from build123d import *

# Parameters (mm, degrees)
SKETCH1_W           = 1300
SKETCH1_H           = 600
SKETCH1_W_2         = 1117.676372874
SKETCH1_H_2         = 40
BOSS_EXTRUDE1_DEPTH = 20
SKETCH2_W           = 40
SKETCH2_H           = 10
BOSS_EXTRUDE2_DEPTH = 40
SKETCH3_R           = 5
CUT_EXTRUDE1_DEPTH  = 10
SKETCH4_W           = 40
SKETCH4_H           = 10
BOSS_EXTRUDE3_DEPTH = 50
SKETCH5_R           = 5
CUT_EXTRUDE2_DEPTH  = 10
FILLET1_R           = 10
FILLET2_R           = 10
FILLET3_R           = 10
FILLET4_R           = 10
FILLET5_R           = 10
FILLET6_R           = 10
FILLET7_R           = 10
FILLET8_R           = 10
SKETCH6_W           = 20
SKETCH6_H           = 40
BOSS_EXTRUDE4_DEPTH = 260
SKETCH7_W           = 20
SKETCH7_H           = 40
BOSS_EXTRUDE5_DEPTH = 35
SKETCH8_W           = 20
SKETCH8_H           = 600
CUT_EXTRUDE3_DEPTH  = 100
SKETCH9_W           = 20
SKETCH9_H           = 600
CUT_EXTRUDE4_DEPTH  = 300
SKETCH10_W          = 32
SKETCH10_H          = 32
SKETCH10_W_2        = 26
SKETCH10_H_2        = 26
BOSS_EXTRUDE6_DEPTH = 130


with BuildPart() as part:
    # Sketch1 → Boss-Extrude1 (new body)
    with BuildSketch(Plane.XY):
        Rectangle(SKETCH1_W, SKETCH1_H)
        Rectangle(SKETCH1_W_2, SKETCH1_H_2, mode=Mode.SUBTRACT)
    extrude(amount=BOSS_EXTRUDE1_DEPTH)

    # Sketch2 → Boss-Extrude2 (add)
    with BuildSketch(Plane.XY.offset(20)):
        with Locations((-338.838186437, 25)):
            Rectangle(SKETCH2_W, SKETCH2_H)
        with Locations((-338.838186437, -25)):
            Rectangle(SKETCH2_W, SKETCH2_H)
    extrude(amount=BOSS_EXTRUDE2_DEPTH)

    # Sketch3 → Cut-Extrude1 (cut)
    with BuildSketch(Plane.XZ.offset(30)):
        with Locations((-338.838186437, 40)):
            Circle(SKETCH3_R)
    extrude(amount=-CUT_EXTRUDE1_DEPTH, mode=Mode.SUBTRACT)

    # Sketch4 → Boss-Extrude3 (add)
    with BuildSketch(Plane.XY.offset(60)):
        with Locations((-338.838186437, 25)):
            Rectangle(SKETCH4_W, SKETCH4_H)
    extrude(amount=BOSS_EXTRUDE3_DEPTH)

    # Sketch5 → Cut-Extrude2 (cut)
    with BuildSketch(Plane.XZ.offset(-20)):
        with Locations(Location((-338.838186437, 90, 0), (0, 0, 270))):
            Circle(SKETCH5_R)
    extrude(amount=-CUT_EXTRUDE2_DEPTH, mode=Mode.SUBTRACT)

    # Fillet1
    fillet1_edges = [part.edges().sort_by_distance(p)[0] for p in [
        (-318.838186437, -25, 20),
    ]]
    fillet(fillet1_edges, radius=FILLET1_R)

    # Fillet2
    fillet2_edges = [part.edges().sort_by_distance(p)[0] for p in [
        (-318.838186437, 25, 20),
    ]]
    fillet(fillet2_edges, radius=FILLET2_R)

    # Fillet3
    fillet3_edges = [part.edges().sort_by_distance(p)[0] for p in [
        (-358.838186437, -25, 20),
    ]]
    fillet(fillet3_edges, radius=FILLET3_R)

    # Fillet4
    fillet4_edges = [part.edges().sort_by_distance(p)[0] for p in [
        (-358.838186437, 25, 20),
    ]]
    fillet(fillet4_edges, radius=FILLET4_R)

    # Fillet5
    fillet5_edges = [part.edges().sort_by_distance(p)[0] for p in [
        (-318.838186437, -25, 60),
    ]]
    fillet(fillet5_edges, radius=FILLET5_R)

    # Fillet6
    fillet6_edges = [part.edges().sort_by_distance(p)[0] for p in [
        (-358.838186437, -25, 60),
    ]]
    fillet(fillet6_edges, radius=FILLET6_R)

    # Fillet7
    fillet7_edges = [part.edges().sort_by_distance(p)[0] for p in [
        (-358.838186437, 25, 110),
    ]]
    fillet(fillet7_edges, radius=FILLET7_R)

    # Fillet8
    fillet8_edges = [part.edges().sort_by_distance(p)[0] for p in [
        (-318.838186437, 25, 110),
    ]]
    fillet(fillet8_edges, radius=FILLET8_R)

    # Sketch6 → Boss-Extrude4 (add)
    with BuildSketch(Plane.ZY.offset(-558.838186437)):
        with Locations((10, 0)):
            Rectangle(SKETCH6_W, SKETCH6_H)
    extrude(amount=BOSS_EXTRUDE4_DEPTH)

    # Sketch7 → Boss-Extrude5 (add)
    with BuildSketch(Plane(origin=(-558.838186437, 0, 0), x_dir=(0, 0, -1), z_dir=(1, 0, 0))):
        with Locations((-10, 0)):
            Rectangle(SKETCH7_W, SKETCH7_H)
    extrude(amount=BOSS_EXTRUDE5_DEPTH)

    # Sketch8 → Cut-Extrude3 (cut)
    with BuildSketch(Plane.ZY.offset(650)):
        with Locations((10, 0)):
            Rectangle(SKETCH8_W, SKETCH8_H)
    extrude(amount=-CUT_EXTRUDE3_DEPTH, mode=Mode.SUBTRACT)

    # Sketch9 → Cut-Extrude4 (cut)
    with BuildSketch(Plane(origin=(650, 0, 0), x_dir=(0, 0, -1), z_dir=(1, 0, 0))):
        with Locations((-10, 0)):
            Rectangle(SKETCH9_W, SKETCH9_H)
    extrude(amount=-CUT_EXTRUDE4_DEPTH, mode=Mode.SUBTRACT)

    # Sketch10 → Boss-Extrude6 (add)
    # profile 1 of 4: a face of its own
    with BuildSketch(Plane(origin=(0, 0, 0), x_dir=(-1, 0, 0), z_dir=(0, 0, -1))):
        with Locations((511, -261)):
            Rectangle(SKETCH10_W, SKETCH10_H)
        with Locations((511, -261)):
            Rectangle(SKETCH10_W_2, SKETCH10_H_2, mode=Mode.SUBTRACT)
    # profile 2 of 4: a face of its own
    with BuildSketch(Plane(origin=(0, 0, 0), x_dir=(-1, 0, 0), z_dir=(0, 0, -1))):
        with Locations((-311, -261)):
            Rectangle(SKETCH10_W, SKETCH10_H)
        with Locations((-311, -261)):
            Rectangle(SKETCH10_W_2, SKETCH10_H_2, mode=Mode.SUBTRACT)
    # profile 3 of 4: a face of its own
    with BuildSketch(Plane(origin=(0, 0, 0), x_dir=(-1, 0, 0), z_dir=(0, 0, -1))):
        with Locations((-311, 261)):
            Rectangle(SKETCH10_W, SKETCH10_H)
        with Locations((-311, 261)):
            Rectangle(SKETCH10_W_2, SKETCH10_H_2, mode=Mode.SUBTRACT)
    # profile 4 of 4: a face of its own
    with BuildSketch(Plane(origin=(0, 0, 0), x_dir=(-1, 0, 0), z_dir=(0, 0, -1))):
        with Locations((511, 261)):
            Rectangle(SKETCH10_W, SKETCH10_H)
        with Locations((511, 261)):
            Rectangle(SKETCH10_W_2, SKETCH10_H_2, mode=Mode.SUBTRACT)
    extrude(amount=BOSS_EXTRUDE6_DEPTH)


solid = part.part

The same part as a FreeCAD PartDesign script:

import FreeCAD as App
import Part
import Sketcher


def edges_at(feature, points):
    """Names of the edges that pass closest to the given points."""
    edges = feature.Shape.Edges
    near = lambda p: min(range(len(edges)), key=lambda i: edges[i].distToShape(Part.Vertex(*p))[0])
    return sorted({f"Edge{near(p) + 1}" for p in points})

doc = App.newDocument("Part")
body = doc.addObject("PartDesign::Body", "Body")

# Sketch on XY plane
sketch1 = doc.addObject("Sketcher::SketchObject", "Sketch")
body.addObject(sketch1)
sketch1.AttachmentSupport = (doc.XY_Plane, [""])
sketch1.MapMode = "FlatFace"
sketch1.addGeometry([
    Part.LineSegment(App.Vector(-650, 300, 0), App.Vector(-650, -300, 0)),  # 0
    Part.LineSegment(App.Vector(-650, -300, 0), App.Vector(650, -300, 0)),  # 1
    Part.LineSegment(App.Vector(650, -300, 0), App.Vector(650, 300, 0)),  # 2
    Part.LineSegment(App.Vector(650, 300, 0), App.Vector(-650, 300, 0)),  # 3
    Part.LineSegment(App.Vector(559, -20, 0), App.Vector(-559, -20, 0)),  # 4
    Part.LineSegment(App.Vector(-559, -20, 0), App.Vector(-559, 20, 0)),  # 5
    Part.LineSegment(App.Vector(-559, 20, 0), App.Vector(559, 20, 0)),  # 6
    Part.LineSegment(App.Vector(559, 20, 0), App.Vector(559, -20, 0)),  # 7
], False)
sketch1.addConstraint([
    Sketcher.Constraint("Coincident", 0, 2, 1, 1),
    Sketcher.Constraint("Coincident", 1, 2, 2, 1),
    Sketcher.Constraint("Coincident", 2, 2, 3, 1),
    Sketcher.Constraint("Coincident", 3, 2, 0, 1),
    Sketcher.Constraint("Coincident", 4, 2, 5, 1),
    Sketcher.Constraint("Coincident", 5, 2, 6, 1),
    Sketcher.Constraint("Coincident", 6, 2, 7, 1),
    Sketcher.Constraint("Coincident", 7, 2, 4, 1),
    Sketcher.Constraint("Vertical", 0),
    Sketcher.Constraint("Horizontal", 1),
    Sketcher.Constraint("Vertical", 2),
    Sketcher.Constraint("Horizontal", 3),
    Sketcher.Constraint("Horizontal", 4),
    Sketcher.Constraint("Vertical", 5),
    Sketcher.Constraint("Horizontal", 6),
    Sketcher.Constraint("Vertical", 7),
    Sketcher.Constraint("Symmetric", 0, 2, 2, 2, -1, 1),
    Sketcher.Constraint("Symmetric", 4, 2, 6, 2, -1, 1),
    Sketcher.Constraint("DistanceX", 1, 1, 1, 2, 1300.0),
    Sketcher.Constraint("DistanceY", 0, 2, 0, 1, 600.0),
    Sketcher.Constraint("DistanceY", 5, 1, 5, 2, 40.0),
    Sketcher.Constraint("DistanceX", 4, 2, 4, 1, 1117.676373),
])
pad1 = doc.addObject("PartDesign::Pad", "Pad")
body.addObject(pad1)
pad1.Profile = sketch1
pad1.Length = 20

# Sketch on XY plane
sketch2 = doc.addObject("Sketcher::SketchObject", "Sketch001")
body.addObject(sketch2)
sketch2.AttachmentSupport = (doc.XY_Plane, [""])
sketch2.MapMode = "FlatFace"
sketch2.AttachmentOffset = App.Placement(App.Vector(0, 0, 20), App.Rotation())
sketch2.addGeometry([
    Part.LineSegment(App.Vector(-359, 30, 0), App.Vector(-359, 20, 0)),  # 0
    Part.LineSegment(App.Vector(-359, 20, 0), App.Vector(-319, 20, 0)),  # 1
    Part.LineSegment(App.Vector(-319, 20, 0), App.Vector(-319, 30, 0)),  # 2
    Part.LineSegment(App.Vector(-319, 30, 0), App.Vector(-359, 30, 0)),  # 3
    Part.LineSegment(App.Vector(-359, -20, 0), App.Vector(-359, -30, 0)),  # 4
    Part.LineSegment(App.Vector(-359, -30, 0), App.Vector(-319, -30, 0)),  # 5
    Part.LineSegment(App.Vector(-319, -30, 0), App.Vector(-319, -20, 0)),  # 6
    Part.LineSegment(App.Vector(-319, -20, 0), App.Vector(-359, -20, 0)),  # 7
], False)
sketch2.addConstraint([
    Sketcher.Constraint("Coincident", 0, 2, 1, 1),
    Sketcher.Constraint("Coincident", 1, 2, 2, 1),
    Sketcher.Constraint("Coincident", 2, 2, 3, 1),
    Sketcher.Constraint("Coincident", 3, 2, 0, 1),
    Sketcher.Constraint("Coincident", 4, 2, 5, 1),
    Sketcher.Constraint("Coincident", 5, 2, 6, 1),
    Sketcher.Constraint("Coincident", 6, 2, 7, 1),
    Sketcher.Constraint("Coincident", 7, 2, 4, 1),
    Sketcher.Constraint("Vertical", 0),
    Sketcher.Constraint("Horizontal", 1),
    Sketcher.Constraint("Vertical", 2),
    Sketcher.Constraint("Horizontal", 3),
    Sketcher.Constraint("Vertical", 4),
    Sketcher.Constraint("Horizontal", 5),
    Sketcher.Constraint("Vertical", 6),
    Sketcher.Constraint("Horizontal", 7),
    Sketcher.Constraint("Symmetric", 3, 2, 4, 2, -1),
    Sketcher.Constraint("Symmetric", 1, 2, 6, 2, -1),
    Sketcher.Constraint("DistanceX", 1, 1, 1, 2, 40.0),
    Sketcher.Constraint("DistanceY", 0, 2, 0, 1, 10.0),
    Sketcher.Constraint("DistanceY", -1, 1, 0, 2, 20.0),
    Sketcher.Constraint("DistanceX", 0, 2, -1, 1, 358.838186),
])
pad2 = doc.addObject("PartDesign::Pad", "Pad001")
body.addObject(pad2)
pad2.Profile = sketch2
pad2.Length = 40

# Sketch on XZ plane
sketch3 = doc.addObject("Sketcher::SketchObject", "Sketch002")
body.addObject(sketch3)
sketch3.AttachmentSupport = (doc.XZ_Plane, [""])
sketch3.MapMode = "FlatFace"
sketch3.AttachmentOffset = App.Placement(App.Vector(0, 0, 30), App.Rotation())
sketch3.addGeometry(Part.Circle(App.Vector(-339, 40, 0), App.Vector(0, 0, 1), 5), False)
sketch3.addConstraint([
    Sketcher.Constraint("Diameter", 0, 10.0),
    Sketcher.Constraint("DistanceY", -1, 1, 0, 3, 40.0),
    Sketcher.Constraint("DistanceX", 0, 3, -1, 1, 338.838186),
])
pocket1 = doc.addObject("PartDesign::Pocket", "Pocket")
body.addObject(pocket1)
pocket1.Profile = sketch3
pocket1.Length = 10

# Sketch on XY plane
sketch4 = doc.addObject("Sketcher::SketchObject", "Sketch003")
body.addObject(sketch4)
sketch4.AttachmentSupport = (doc.XY_Plane, [""])
sketch4.MapMode = "FlatFace"
sketch4.AttachmentOffset = App.Placement(App.Vector(0, 0, 60), App.Rotation())
sketch4.addGeometry([
    Part.LineSegment(App.Vector(-359, 30, 0), App.Vector(-359, 20, 0)),
    Part.LineSegment(App.Vector(-359, 20, 0), App.Vector(-319, 20, 0)),
    Part.LineSegment(App.Vector(-319, 20, 0), App.Vector(-319, 30, 0)),
    Part.LineSegment(App.Vector(-319, 30, 0), App.Vector(-359, 30, 0)),
], False)
sketch4.addConstraint([
    Sketcher.Constraint("Coincident", 0, 2, 1, 1),
    Sketcher.Constraint("Coincident", 1, 2, 2, 1),
    Sketcher.Constraint("Coincident", 2, 2, 3, 1),
    Sketcher.Constraint("Coincident", 3, 2, 0, 1),
    Sketcher.Constraint("Vertical", 0),
    Sketcher.Constraint("Horizontal", 1),
    Sketcher.Constraint("Vertical", 2),
    Sketcher.Constraint("Horizontal", 3),
    Sketcher.Constraint("DistanceX", 1, 1, 1, 2, 40.0),
    Sketcher.Constraint("DistanceY", 0, 2, 0, 1, 10.0),
    Sketcher.Constraint("DistanceY", -1, 1, 0, 2, 20.0),
    Sketcher.Constraint("DistanceX", 0, 2, -1, 1, 358.838186),
])
pad3 = doc.addObject("PartDesign::Pad", "Pad002")
body.addObject(pad3)
pad3.Profile = sketch4
pad3.Length = 50

# Sketch on XZ plane
sketch5 = doc.addObject("Sketcher::SketchObject", "Sketch004")
body.addObject(sketch5)
sketch5.AttachmentSupport = (doc.XZ_Plane, [""])
sketch5.MapMode = "FlatFace"
sketch5.AttachmentOffset = App.Placement(App.Vector(0, 0, -20), App.Rotation())
sketch5.addGeometry(Part.Circle(App.Vector(-339, 90, 0), App.Vector(0, 0, 1), 5), False)
sketch5.addConstraint([
    Sketcher.Constraint("Diameter", 0, 10.0),
    Sketcher.Constraint("DistanceY", -1, 1, 0, 3, 90.0),
    Sketcher.Constraint("DistanceX", 0, 3, -1, 1, 338.838186),
])
pocket2 = doc.addObject("PartDesign::Pocket", "Pocket001")
body.addObject(pocket2)
pocket2.Profile = sketch5
pocket2.Length = 10
doc.recompute()

fillet = doc.addObject("PartDesign::Fillet", "Fillet")
body.addObject(fillet)
fillet.Base = (pocket2, edges_at(pocket2, [(-318.838, -25, 20)]))
fillet.Radius = 10
doc.recompute()

fillet2 = doc.addObject("PartDesign::Fillet", "Fillet001")
body.addObject(fillet2)
fillet2.Base = (fillet, edges_at(fillet, [(-318.838, 25, 20)]))
fillet2.Radius = 10
doc.recompute()

fillet3 = doc.addObject("PartDesign::Fillet", "Fillet002")
body.addObject(fillet3)
fillet3.Base = (fillet2, edges_at(fillet2, [(-358.838, -25, 20)]))
fillet3.Radius = 10
doc.recompute()

fillet4 = doc.addObject("PartDesign::Fillet", "Fillet003")
body.addObject(fillet4)
fillet4.Base = (fillet3, edges_at(fillet3, [(-358.838, 25, 20)]))
fillet4.Radius = 10
doc.recompute()

fillet5 = doc.addObject("PartDesign::Fillet", "Fillet004")
body.addObject(fillet5)
fillet5.Base = (fillet4, edges_at(fillet4, [(-318.838, -25, 60)]))
fillet5.Radius = 10
doc.recompute()

fillet6 = doc.addObject("PartDesign::Fillet", "Fillet005")
body.addObject(fillet6)
fillet6.Base = (fillet5, edges_at(fillet5, [(-358.838, -25, 60)]))
fillet6.Radius = 10
doc.recompute()

fillet7 = doc.addObject("PartDesign::Fillet", "Fillet006")
body.addObject(fillet7)
fillet7.Base = (fillet6, edges_at(fillet6, [(-358.838, 25, 110)]))
fillet7.Radius = 10
doc.recompute()

fillet8 = doc.addObject("PartDesign::Fillet", "Fillet007")
body.addObject(fillet8)
fillet8.Base = (fillet7, edges_at(fillet7, [(-318.838, 25, 110)]))
fillet8.Radius = 10

# Sketch on YZ plane
sketch6 = doc.addObject("Sketcher::SketchObject", "Sketch005")
body.addObject(sketch6)
sketch6.AttachmentSupport = (doc.YZ_Plane, [""])
sketch6.MapMode = "FlatFace"
sketch6.AttachmentOffset = App.Placement(App.Vector(0, 0, 558.838186), App.Rotation())
sketch6.addGeometry([
    Part.LineSegment(App.Vector(20, 0, 0), App.Vector(-20, 0, 0)),
    Part.LineSegment(App.Vector(-20, 0, 0), App.Vector(-20, 20, 0)),
    Part.LineSegment(App.Vector(-20, 20, 0), App.Vector(20, 20, 0)),
    Part.LineSegment(App.Vector(20, 20, 0), App.Vector(20, 0, 0)),
], False)
sketch6.addConstraint([
    Sketcher.Constraint("Coincident", 0, 2, 1, 1),
    Sketcher.Constraint("Coincident", 1, 2, 2, 1),
    Sketcher.Constraint("Coincident", 2, 2, 3, 1),
    Sketcher.Constraint("Coincident", 3, 2, 0, 1),
    Sketcher.Constraint("Horizontal", 0),
    Sketcher.Constraint("Vertical", 1),
    Sketcher.Constraint("Horizontal", 2),
    Sketcher.Constraint("Vertical", 3),
    Sketcher.Constraint("Symmetric", 0, 2, 3, 2, -1, 1),
    Sketcher.Constraint("DistanceX", 0, 2, 0, 1, 40.0),
    Sketcher.Constraint("DistanceY", 1, 1, 1, 2, 20.0),
])
pad4 = doc.addObject("PartDesign::Pad", "Pad003")
body.addObject(pad4)
pad4.Profile = sketch6
pad4.Length = 260
pad4.Reversed = True

# Sketch on YZ plane
sketch7 = doc.addObject("Sketcher::SketchObject", "Sketch006")
body.addObject(sketch7)
sketch7.AttachmentSupport = (doc.YZ_Plane, [""])
sketch7.MapMode = "FlatFace"
sketch7.AttachmentOffset = App.Placement(App.Vector(0, 0, -558.838186), App.Rotation())
sketch7.addGeometry([
    Part.LineSegment(App.Vector(20, 20, 0), App.Vector(-20, 20, 0)),
    Part.LineSegment(App.Vector(-20, 20, 0), App.Vector(-20, 0, 0)),
    Part.LineSegment(App.Vector(-20, 0, 0), App.Vector(20, 0, 0)),
    Part.LineSegment(App.Vector(20, 0, 0), App.Vector(20, 20, 0)),
], False)
sketch7.addConstraint([
    Sketcher.Constraint("Coincident", 0, 2, 1, 1),
    Sketcher.Constraint("Coincident", 1, 2, 2, 1),
    Sketcher.Constraint("Coincident", 2, 2, 3, 1),
    Sketcher.Constraint("Coincident", 3, 2, 0, 1),
    Sketcher.Constraint("Horizontal", 0),
    Sketcher.Constraint("Vertical", 1),
    Sketcher.Constraint("Horizontal", 2),
    Sketcher.Constraint("Vertical", 3),
    Sketcher.Constraint("Symmetric", 1, 2, 2, 2, -1, 1),
    Sketcher.Constraint("DistanceX", 0, 2, 0, 1, 40.0),
    Sketcher.Constraint("DistanceY", 1, 2, 1, 1, 20.0),
])
pad5 = doc.addObject("PartDesign::Pad", "Pad004")
body.addObject(pad5)
pad5.Profile = sketch7
pad5.Length = 35

# Sketch on YZ plane
sketch8 = doc.addObject("Sketcher::SketchObject", "Sketch007")
body.addObject(sketch8)
sketch8.AttachmentSupport = (doc.YZ_Plane, [""])
sketch8.MapMode = "FlatFace"
sketch8.AttachmentOffset = App.Placement(App.Vector(0, 0, -650), App.Rotation())
sketch8.addGeometry([
    Part.LineSegment(App.Vector(300, 0, 0), App.Vector(-300, 0, 0)),
    Part.LineSegment(App.Vector(-300, 0, 0), App.Vector(-300, 20, 0)),
    Part.LineSegment(App.Vector(-300, 20, 0), App.Vector(300, 20, 0)),
    Part.LineSegment(App.Vector(300, 20, 0), App.Vector(300, 0, 0)),
], False)
sketch8.addConstraint([
    Sketcher.Constraint("Coincident", 0, 2, 1, 1),
    Sketcher.Constraint("Coincident", 1, 2, 2, 1),
    Sketcher.Constraint("Coincident", 2, 2, 3, 1),
    Sketcher.Constraint("Coincident", 3, 2, 0, 1),
    Sketcher.Constraint("Horizontal", 0),
    Sketcher.Constraint("Vertical", 1),
    Sketcher.Constraint("Horizontal", 2),
    Sketcher.Constraint("Vertical", 3),
    Sketcher.Constraint("Symmetric", 0, 2, 3, 2, -1, 1),
    Sketcher.Constraint("DistanceX", 0, 2, 0, 1, 600.0),
    Sketcher.Constraint("DistanceY", 1, 1, 1, 2, 20.0),
])
pocket3 = doc.addObject("PartDesign::Pocket", "Pocket002")
body.addObject(pocket3)
pocket3.Profile = sketch8
pocket3.Length = 100
pocket3.Reversed = True

# Sketch on YZ plane
sketch9 = doc.addObject("Sketcher::SketchObject", "Sketch008")
body.addObject(sketch9)
sketch9.AttachmentSupport = (doc.YZ_Plane, [""])
sketch9.MapMode = "FlatFace"
sketch9.AttachmentOffset = App.Placement(App.Vector(0, 0, 650), App.Rotation())
sketch9.addGeometry([
    Part.LineSegment(App.Vector(300, 20, 0), App.Vector(-300, 20, 0)),
    Part.LineSegment(App.Vector(-300, 20, 0), App.Vector(-300, 0, 0)),
    Part.LineSegment(App.Vector(-300, 0, 0), App.Vector(300, 0, 0)),
    Part.LineSegment(App.Vector(300, 0, 0), App.Vector(300, 20, 0)),
], False)
sketch9.addConstraint([
    Sketcher.Constraint("Coincident", 0, 2, 1, 1),
    Sketcher.Constraint("Coincident", 1, 2, 2, 1),
    Sketcher.Constraint("Coincident", 2, 2, 3, 1),
    Sketcher.Constraint("Coincident", 3, 2, 0, 1),
    Sketcher.Constraint("Horizontal", 0),
    Sketcher.Constraint("Vertical", 1),
    Sketcher.Constraint("Horizontal", 2),
    Sketcher.Constraint("Vertical", 3),
    Sketcher.Constraint("Symmetric", 1, 2, 2, 2, -1, 1),
    Sketcher.Constraint("DistanceX", 0, 2, 0, 1, 600.0),
    Sketcher.Constraint("DistanceY", 1, 2, 1, 1, 20.0),
])
pocket4 = doc.addObject("PartDesign::Pocket", "Pocket003")
body.addObject(pocket4)
pocket4.Profile = sketch9
pocket4.Length = 300

# Sketch on XY plane
sketch10 = doc.addObject("Sketcher::SketchObject", "Sketch009")
body.addObject(sketch10)
sketch10.AttachmentSupport = (doc.XY_Plane, [""])
sketch10.MapMode = "FlatFace"
sketch10.addGeometry([
    Part.LineSegment(App.Vector(-495, -245, 0), App.Vector(-495, -277, 0)),  # 0
    Part.LineSegment(App.Vector(-495, -277, 0), App.Vector(-527, -277, 0)),  # 1
    Part.LineSegment(App.Vector(-527, -277, 0), App.Vector(-527, -245, 0)),  # 2
    Part.LineSegment(App.Vector(-527, -245, 0), App.Vector(-495, -245, 0)),  # 3
    Part.LineSegment(App.Vector(-524, -274, 0), App.Vector(-498, -274, 0)),  # 4
    Part.LineSegment(App.Vector(-498, -274, 0), App.Vector(-498, -248, 0)),  # 5
    Part.LineSegment(App.Vector(-498, -248, 0), App.Vector(-524, -248, 0)),  # 6
    Part.LineSegment(App.Vector(-524, -248, 0), App.Vector(-524, -274, 0)),  # 7
    Part.LineSegment(App.Vector(327, -245, 0), App.Vector(327, -277, 0)),  # 8
    Part.LineSegment(App.Vector(327, -277, 0), App.Vector(295, -277, 0)),  # 9
    Part.LineSegment(App.Vector(295, -277, 0), App.Vector(295, -245, 0)),  # 10
    Part.LineSegment(App.Vector(295, -245, 0), App.Vector(327, -245, 0)),  # 11
    Part.LineSegment(App.Vector(298, -274, 0), App.Vector(324, -274, 0)),  # 12
    Part.LineSegment(App.Vector(324, -274, 0), App.Vector(324, -248, 0)),  # 13
    Part.LineSegment(App.Vector(324, -248, 0), App.Vector(298, -248, 0)),  # 14
    Part.LineSegment(App.Vector(298, -248, 0), App.Vector(298, -274, 0)),  # 15
    Part.LineSegment(App.Vector(327, 277, 0), App.Vector(327, 245, 0)),  # 16
    Part.LineSegment(App.Vector(327, 245, 0), App.Vector(295, 245, 0)),  # 17
    Part.LineSegment(App.Vector(295, 245, 0), App.Vector(295, 277, 0)),  # 18
    Part.LineSegment(App.Vector(295, 277, 0), App.Vector(327, 277, 0)),  # 19
    Part.LineSegment(App.Vector(298, 248, 0), App.Vector(324, 248, 0)),  # 20
    Part.LineSegment(App.Vector(324, 248, 0), App.Vector(324, 274, 0)),  # 21
    Part.LineSegment(App.Vector(324, 274, 0), App.Vector(298, 274, 0)),  # 22
    Part.LineSegment(App.Vector(298, 274, 0), App.Vector(298, 248, 0)),  # 23
    Part.LineSegment(App.Vector(-495, 277, 0), App.Vector(-495, 245, 0)),  # 24
    Part.LineSegment(App.Vector(-495, 245, 0), App.Vector(-527, 245, 0)),  # 25
    Part.LineSegment(App.Vector(-527, 245, 0), App.Vector(-527, 277, 0)),  # 26
    Part.LineSegment(App.Vector(-527, 277, 0), App.Vector(-495, 277, 0)),  # 27
    Part.LineSegment(App.Vector(-524, 248, 0), App.Vector(-498, 248, 0)),  # 28
    Part.LineSegment(App.Vector(-498, 248, 0), App.Vector(-498, 274, 0)),  # 29
    Part.LineSegment(App.Vector(-498, 274, 0), App.Vector(-524, 274, 0)),  # 30
    Part.LineSegment(App.Vector(-524, 274, 0), App.Vector(-524, 248, 0)),  # 31
], False)
sketch10.addConstraint([
    Sketcher.Constraint("Coincident", 0, 2, 1, 1),
    Sketcher.Constraint("Coincident", 1, 2, 2, 1),
    Sketcher.Constraint("Coincident", 2, 2, 3, 1),
    Sketcher.Constraint("Coincident", 3, 2, 0, 1),
    Sketcher.Constraint("Coincident", 4, 2, 5, 1),
    Sketcher.Constraint("Coincident", 5, 2, 6, 1),
    Sketcher.Constraint("Coincident", 6, 2, 7, 1),
    Sketcher.Constraint("Coincident", 7, 2, 4, 1),
    Sketcher.Constraint("Coincident", 8, 2, 9, 1),
    Sketcher.Constraint("Coincident", 9, 2, 10, 1),
    Sketcher.Constraint("Coincident", 10, 2, 11, 1),
    Sketcher.Constraint("Coincident", 11, 2, 8, 1),
    Sketcher.Constraint("Coincident", 12, 2, 13, 1),
    Sketcher.Constraint("Coincident", 13, 2, 14, 1),
    Sketcher.Constraint("Coincident", 14, 2, 15, 1),
    Sketcher.Constraint("Coincident", 15, 2, 12, 1),
    Sketcher.Constraint("Coincident", 16, 2, 17, 1),
    Sketcher.Constraint("Coincident", 17, 2, 18, 1),
    Sketcher.Constraint("Coincident", 18, 2, 19, 1),
    Sketcher.Constraint("Coincident", 19, 2, 16, 1),
    Sketcher.Constraint("Coincident", 20, 2, 21, 1),
    Sketcher.Constraint("Coincident", 21, 2, 22, 1),
    Sketcher.Constraint("Coincident", 22, 2, 23, 1),
    Sketcher.Constraint("Coincident", 23, 2, 20, 1),
    Sketcher.Constraint("Coincident", 24, 2, 25, 1),
    Sketcher.Constraint("Coincident", 25, 2, 26, 1),
    Sketcher.Constraint("Coincident", 26, 2, 27, 1),
    Sketcher.Constraint("Coincident", 27, 2, 24, 1),
    Sketcher.Constraint("Coincident", 28, 2, 29, 1),
    Sketcher.Constraint("Coincident", 29, 2, 30, 1),
    Sketcher.Constraint("Coincident", 30, 2, 31, 1),
    Sketcher.Constraint("Coincident", 31, 2, 28, 1),
    Sketcher.Constraint("Vertical", 0),
    Sketcher.Constraint("Horizontal", 1),
    Sketcher.Constraint("Vertical", 2),
    Sketcher.Constraint("Horizontal", 3),
    Sketcher.Constraint("Horizontal", 4),
    Sketcher.Constraint("Vertical", 5),
    Sketcher.Constraint("Horizontal", 6),
    Sketcher.Constraint("Vertical", 7),
    Sketcher.Constraint("Vertical", 8),
    Sketcher.Constraint("Horizontal", 9),
    Sketcher.Constraint("Vertical", 10),
    Sketcher.Constraint("Horizontal", 11),
    Sketcher.Constraint("Horizontal", 12),
    Sketcher.Constraint("Vertical", 13),
    Sketcher.Constraint("Horizontal", 14),
    Sketcher.Constraint("Vertical", 15),
    Sketcher.Constraint("Vertical", 16),
    Sketcher.Constraint("Horizontal", 17),
    Sketcher.Constraint("Vertical", 18),
    Sketcher.Constraint("Horizontal", 19),
    Sketcher.Constraint("Horizontal", 20),
    Sketcher.Constraint("Vertical", 21),
    Sketcher.Constraint("Horizontal", 22),
    Sketcher.Constraint("Vertical", 23),
    Sketcher.Constraint("Vertical", 24),
    Sketcher.Constraint("Horizontal", 25),
    Sketcher.Constraint("Vertical", 26),
    Sketcher.Constraint("Horizontal", 27),
    Sketcher.Constraint("Horizontal", 28),
    Sketcher.Constraint("Vertical", 29),
    Sketcher.Constraint("Horizontal", 30),
    Sketcher.Constraint("Vertical", 31),
    Sketcher.Constraint("Symmetric", 11, 2, 16, 2, -1),
    Sketcher.Constraint("Symmetric", 9, 2, 18, 2, -1),
    Sketcher.Constraint("Symmetric", 13, 2, 20, 2, -1),
    Sketcher.Constraint("Symmetric", 15, 2, 22, 2, -1),
    Sketcher.Constraint("Symmetric", 3, 2, 24, 2, -1),
    Sketcher.Constraint("Symmetric", 1, 2, 26, 2, -1),
    Sketcher.Constraint("Symmetric", 5, 2, 28, 2, -1),
    Sketcher.Constraint("Symmetric", 7, 2, 30, 2, -1),
    Sketcher.Constraint("Horizontal", 1, 2, 8, 2),
    Sketcher.Constraint("Horizontal", 3, 2, 10, 2),
    Sketcher.Constraint("Horizontal", 7, 2, 12, 2),
    Sketcher.Constraint("Horizontal", 6, 2, 13, 2),
    Sketcher.Constraint("Equal", 3, 9),
    Sketcher.Constraint("Equal", 6, 12),
    Sketcher.Constraint("Equal", 27, 0),
    Sketcher.Constraint("Equal", 30, 5),
    Sketcher.Constraint("DistanceX", 1, 2, 1, 1, 32.0),
    Sketcher.Constraint("DistanceX", 4, 1, 4, 2, 26.0),
    Sketcher.Constraint("DistanceX", 0, 2, -1, 1, 495.0),
    Sketcher.Constraint("DistanceY", 0, 2, -1, 1, 277.0),
    Sketcher.Constraint("DistanceX", 4, 2, -1, 1, 498.0),
    Sketcher.Constraint("DistanceY", 4, 2, -1, 1, 274.0),
    Sketcher.Constraint("DistanceX", -1, 1, 8, 2, 327.0),
    Sketcher.Constraint("DistanceX", -1, 1, 12, 2, 324.0),
])
pad6 = doc.addObject("PartDesign::Pad", "Pad005")
body.addObject(pad6)
pad6.Profile = sketch10
pad6.Length = 130
pad6.Reversed = True

doc.recompute()
